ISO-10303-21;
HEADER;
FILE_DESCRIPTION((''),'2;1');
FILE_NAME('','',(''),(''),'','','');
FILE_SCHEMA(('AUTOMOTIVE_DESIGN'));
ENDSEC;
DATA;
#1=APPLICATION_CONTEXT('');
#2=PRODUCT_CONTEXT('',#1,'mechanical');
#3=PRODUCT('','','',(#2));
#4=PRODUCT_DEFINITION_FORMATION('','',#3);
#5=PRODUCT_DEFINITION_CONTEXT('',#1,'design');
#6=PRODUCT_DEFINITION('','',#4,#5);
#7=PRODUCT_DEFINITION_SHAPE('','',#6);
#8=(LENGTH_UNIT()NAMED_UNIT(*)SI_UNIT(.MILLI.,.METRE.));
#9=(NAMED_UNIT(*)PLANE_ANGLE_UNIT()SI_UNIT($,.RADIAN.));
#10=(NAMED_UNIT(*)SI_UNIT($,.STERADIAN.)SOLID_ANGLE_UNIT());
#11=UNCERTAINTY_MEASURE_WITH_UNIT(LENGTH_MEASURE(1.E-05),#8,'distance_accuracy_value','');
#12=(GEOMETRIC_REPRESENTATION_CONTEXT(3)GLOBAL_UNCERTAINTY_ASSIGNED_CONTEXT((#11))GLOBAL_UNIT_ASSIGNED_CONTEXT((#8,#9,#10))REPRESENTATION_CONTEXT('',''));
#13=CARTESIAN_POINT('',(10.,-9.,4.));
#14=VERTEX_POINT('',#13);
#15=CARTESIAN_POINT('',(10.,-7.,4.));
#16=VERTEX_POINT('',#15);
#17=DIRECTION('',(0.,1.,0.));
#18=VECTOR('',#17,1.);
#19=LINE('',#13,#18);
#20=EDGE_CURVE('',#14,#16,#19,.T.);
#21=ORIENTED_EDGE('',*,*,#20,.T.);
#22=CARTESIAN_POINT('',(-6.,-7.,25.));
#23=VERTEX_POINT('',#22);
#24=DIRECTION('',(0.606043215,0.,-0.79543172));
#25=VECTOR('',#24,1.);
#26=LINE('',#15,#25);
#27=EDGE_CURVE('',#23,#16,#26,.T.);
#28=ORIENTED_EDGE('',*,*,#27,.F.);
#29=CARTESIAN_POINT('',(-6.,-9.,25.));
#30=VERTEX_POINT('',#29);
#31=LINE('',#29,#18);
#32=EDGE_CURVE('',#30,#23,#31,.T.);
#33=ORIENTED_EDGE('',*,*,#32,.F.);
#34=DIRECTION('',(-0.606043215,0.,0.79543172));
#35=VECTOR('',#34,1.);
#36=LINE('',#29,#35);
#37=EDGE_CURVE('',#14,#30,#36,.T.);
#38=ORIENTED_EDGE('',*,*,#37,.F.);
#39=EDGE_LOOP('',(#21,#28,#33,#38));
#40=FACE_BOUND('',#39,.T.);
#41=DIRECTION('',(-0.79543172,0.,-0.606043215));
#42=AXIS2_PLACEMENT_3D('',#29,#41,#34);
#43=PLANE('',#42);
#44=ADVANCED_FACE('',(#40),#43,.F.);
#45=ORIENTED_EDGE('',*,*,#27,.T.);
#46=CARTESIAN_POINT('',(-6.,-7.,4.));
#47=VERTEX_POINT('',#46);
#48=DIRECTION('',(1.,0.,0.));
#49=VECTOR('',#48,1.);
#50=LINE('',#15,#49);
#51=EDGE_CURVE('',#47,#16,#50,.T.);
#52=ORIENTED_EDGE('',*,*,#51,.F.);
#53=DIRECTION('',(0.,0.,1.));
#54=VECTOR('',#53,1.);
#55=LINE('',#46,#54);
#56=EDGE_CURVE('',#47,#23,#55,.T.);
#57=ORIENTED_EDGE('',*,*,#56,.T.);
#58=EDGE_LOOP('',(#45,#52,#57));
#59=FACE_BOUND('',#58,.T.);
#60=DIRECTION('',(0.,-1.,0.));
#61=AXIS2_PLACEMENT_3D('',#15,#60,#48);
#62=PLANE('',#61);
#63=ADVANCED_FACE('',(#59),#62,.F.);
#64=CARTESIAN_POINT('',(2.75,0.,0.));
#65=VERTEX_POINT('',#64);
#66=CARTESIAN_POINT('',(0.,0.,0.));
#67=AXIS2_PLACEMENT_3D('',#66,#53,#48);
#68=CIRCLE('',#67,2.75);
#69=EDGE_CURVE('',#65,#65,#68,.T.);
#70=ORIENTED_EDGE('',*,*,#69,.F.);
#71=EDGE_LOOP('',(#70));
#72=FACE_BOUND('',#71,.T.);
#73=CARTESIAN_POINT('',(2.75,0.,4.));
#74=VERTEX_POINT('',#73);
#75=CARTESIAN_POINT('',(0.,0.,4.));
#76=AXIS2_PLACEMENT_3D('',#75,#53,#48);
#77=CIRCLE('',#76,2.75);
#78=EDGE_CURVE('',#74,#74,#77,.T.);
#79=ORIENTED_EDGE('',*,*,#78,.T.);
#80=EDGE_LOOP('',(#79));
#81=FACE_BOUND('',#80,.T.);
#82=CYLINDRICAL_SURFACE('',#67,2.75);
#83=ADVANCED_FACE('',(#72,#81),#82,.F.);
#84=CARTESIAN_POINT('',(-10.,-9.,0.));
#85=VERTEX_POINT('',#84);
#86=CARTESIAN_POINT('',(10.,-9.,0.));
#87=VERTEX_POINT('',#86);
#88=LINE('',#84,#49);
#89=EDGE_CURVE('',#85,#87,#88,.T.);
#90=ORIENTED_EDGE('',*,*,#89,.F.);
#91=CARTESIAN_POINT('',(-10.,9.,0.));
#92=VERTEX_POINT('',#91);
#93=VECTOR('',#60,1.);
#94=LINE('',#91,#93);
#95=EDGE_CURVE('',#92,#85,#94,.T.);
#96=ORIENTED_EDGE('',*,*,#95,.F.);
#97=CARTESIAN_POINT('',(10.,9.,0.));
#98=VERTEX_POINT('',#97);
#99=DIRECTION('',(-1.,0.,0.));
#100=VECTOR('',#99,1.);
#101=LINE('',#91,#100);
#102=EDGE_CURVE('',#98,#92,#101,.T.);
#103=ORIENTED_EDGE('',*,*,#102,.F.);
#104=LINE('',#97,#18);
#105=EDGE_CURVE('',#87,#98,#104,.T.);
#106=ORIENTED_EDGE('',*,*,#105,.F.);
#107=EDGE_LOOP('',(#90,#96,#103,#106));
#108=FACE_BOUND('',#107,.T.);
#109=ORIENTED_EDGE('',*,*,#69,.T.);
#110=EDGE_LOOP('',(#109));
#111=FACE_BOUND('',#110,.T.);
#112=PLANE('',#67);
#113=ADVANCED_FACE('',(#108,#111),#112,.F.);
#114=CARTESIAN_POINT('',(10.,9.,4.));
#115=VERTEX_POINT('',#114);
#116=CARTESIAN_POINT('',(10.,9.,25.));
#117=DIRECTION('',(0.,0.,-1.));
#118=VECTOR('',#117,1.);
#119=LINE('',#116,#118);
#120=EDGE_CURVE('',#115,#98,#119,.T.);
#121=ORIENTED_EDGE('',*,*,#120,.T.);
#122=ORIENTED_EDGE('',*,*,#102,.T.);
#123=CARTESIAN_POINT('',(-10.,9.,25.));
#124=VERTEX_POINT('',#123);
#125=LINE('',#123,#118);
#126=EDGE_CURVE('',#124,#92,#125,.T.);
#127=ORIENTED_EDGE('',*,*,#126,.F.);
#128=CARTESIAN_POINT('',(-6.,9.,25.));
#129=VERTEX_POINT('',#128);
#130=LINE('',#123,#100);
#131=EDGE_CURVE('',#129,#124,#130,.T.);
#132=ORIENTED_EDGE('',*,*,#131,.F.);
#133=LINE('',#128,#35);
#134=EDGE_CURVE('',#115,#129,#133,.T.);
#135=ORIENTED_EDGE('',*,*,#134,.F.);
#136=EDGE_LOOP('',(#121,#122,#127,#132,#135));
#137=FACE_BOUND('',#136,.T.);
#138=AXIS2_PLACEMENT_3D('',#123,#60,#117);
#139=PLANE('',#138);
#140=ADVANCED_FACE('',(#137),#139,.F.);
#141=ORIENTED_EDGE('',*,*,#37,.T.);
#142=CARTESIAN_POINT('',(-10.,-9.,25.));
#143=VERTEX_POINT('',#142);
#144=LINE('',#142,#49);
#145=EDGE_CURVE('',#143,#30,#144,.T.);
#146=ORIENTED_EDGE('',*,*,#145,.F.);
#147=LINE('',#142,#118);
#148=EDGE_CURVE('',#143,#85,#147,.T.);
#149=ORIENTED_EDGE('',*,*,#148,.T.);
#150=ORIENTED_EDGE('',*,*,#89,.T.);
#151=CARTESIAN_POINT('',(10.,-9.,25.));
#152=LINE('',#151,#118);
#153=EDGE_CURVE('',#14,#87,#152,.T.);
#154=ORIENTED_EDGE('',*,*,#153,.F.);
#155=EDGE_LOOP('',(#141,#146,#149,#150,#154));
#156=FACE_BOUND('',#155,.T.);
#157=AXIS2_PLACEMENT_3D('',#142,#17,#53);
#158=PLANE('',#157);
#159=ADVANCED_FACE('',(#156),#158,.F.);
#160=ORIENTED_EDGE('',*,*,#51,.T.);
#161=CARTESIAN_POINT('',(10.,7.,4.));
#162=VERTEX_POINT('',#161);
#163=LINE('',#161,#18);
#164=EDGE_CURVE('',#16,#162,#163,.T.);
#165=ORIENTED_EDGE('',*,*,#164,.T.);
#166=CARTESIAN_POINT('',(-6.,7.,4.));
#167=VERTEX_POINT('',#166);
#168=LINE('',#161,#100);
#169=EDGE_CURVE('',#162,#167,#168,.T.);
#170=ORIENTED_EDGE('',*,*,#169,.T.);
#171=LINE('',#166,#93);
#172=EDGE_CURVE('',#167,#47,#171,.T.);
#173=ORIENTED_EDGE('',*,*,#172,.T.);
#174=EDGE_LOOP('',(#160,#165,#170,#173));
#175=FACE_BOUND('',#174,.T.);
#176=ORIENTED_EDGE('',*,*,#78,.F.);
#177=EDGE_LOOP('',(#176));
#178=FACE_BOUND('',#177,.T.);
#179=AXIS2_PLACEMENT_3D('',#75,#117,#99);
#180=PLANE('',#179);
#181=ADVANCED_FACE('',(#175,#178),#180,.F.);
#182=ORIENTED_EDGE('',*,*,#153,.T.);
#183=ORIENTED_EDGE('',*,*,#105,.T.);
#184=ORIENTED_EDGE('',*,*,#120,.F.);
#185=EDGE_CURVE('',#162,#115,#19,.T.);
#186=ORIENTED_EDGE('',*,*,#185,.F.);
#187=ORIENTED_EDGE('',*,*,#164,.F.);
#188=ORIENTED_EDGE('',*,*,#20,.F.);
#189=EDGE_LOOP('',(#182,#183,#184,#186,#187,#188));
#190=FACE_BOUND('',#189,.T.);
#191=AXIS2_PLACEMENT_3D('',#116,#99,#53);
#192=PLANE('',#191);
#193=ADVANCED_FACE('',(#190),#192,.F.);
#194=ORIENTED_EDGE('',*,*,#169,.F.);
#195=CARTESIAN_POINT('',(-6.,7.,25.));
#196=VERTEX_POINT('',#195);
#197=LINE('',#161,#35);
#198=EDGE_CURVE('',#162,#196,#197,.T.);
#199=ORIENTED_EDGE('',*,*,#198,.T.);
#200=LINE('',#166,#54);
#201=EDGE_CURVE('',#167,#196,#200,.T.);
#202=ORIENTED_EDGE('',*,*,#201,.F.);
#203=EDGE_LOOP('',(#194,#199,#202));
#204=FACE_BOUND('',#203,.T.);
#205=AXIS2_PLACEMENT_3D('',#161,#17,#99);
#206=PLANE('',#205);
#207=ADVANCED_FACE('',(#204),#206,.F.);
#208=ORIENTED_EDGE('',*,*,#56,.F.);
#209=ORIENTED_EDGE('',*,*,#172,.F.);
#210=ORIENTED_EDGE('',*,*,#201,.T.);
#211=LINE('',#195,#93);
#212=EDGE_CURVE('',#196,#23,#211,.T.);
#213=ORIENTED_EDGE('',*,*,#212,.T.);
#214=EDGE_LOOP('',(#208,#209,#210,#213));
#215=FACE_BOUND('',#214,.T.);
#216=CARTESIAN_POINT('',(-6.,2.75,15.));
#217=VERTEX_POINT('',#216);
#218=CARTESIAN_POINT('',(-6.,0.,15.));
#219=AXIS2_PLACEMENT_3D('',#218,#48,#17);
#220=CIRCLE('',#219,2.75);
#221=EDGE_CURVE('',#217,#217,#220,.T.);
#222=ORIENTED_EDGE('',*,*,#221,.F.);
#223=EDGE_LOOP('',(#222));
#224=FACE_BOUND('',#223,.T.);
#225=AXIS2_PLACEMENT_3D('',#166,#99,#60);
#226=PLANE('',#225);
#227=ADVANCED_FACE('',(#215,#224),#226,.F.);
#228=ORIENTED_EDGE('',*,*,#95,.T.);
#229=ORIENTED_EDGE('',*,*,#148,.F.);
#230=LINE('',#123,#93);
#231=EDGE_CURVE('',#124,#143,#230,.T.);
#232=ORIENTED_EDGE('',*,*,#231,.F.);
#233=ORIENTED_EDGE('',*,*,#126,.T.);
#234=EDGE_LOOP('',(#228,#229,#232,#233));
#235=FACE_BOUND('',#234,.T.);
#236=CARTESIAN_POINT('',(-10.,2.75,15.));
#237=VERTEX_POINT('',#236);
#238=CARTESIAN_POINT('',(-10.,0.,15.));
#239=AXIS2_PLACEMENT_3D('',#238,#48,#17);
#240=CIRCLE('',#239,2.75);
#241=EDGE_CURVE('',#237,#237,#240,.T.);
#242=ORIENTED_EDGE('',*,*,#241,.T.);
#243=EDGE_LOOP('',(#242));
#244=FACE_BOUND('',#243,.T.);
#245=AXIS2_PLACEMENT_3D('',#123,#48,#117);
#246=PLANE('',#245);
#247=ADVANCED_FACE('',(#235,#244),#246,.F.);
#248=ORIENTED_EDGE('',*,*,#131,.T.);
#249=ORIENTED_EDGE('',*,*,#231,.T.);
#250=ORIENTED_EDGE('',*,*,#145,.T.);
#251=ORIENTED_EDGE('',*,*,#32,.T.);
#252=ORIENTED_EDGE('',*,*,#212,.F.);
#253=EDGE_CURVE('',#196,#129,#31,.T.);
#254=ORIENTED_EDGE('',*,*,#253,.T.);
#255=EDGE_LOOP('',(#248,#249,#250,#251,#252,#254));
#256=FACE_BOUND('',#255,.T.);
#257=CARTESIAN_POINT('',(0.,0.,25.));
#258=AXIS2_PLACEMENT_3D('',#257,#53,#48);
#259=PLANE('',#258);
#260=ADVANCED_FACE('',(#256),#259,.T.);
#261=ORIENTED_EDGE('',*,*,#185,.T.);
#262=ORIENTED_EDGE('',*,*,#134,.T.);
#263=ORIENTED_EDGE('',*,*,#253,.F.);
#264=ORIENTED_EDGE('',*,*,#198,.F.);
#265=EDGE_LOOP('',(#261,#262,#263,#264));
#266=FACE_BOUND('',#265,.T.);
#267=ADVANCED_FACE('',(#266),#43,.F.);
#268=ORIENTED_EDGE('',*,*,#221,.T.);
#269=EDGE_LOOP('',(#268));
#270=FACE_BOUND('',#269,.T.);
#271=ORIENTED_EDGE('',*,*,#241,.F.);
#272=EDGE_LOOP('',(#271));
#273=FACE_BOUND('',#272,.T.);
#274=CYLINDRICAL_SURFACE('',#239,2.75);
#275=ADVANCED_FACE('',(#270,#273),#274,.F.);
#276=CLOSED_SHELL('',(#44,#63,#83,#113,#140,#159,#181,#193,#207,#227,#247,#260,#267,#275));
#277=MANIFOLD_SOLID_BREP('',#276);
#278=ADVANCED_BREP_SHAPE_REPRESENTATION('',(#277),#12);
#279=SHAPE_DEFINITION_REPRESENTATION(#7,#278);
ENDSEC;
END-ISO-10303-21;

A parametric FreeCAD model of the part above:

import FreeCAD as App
import Part
import Sketcher

V = App.Vector
Q = App.Units.Quantity

doc = App.newDocument("Part")
body = doc.addObject("PartDesign::Body", "Body")

sketch1 = doc.addObject("Sketcher::SketchObject", "Sketch")
body.addObject(sketch1)
sketch1.AttachmentSupport = (doc.XY_Plane, [""])
sketch1.MapMode = "FlatFace"
sketch1.addGeometry(Part.LineSegment(V(-10, 9, 0), V(-10, -9, 0)), False)
sketch1.addGeometry(Part.LineSegment(V(-10, -9, 0), V(10, -9, 0)), False)
sketch1.addGeometry(Part.LineSegment(V(10, -9, 0), V(10, 9, 0)), False)
sketch1.addGeometry(Part.LineSegment(V(10, 9, 0), V(-10, 9, 0)), False)
sketch1.addConstraint(Sketcher.Constraint("Coincident", 0, 2, 1, 1))
sketch1.addConstraint(Sketcher.Constraint("Coincident", 1, 2, 2, 1))
sketch1.addConstraint(Sketcher.Constraint("Coincident", 2, 2, 3, 1))
sketch1.addConstraint(Sketcher.Constraint("Coincident", 3, 2, 0, 1))
sketch1.addConstraint(Sketcher.Constraint("Vertical", 0))
sketch1.addConstraint(Sketcher.Constraint("Horizontal", 1))
sketch1.addConstraint(Sketcher.Constraint("Vertical", 2))
sketch1.addConstraint(Sketcher.Constraint("Horizontal", 3))
sketch1.addConstraint(Sketcher.Constraint("Symmetric", 0, 2, 2, 2, -1, 1))
sketch1.addConstraint(Sketcher.Constraint("DistanceX", 1, 1, 1, 2, Q("20 mm")))
sketch1.addConstraint(Sketcher.Constraint("DistanceY", 0, 2, 0, 1, Q("18 mm")))
pad1 = doc.addObject("PartDesign::Pad", "Pad")
body.addObject(pad1)
pad1.Profile = sketch1
pad1.Length = 25

sketch2 = doc.addObject("Sketcher::SketchObject", "Sketch001")
body.addObject(sketch2)
sketch2.AttachmentSupport = (doc.XY_Plane, [""])
sketch2.MapMode = "FlatFace"
sketch2.AttachmentOffset = App.Placement(V(0, 0, 25), App.Rotation())
sketch2.addGeometry(Part.LineSegment(V(-6, 7, 0), V(-6, -7, 0)), False)
sketch2.addGeometry(Part.LineSegment(V(-6, -7, 0), V(10, -7, 0)), False)
sketch2.addGeometry(Part.LineSegment(V(10, -7, 0), V(10, 7, 0)), False)
sketch2.addGeometry(Part.LineSegment(V(10, 7, 0), V(-6, 7, 0)), False)
sketch2.addConstraint(Sketcher.Constraint("Coincident", 0, 2, 1, 1))
sketch2.addConstraint(Sketcher.Constraint("Coincident", 1, 2, 2, 1))
sketch2.addConstraint(Sketcher.Constraint("Coincident", 2, 2, 3, 1))
sketch2.addConstraint(Sketcher.Constraint("Coincident", 3, 2, 0, 1))
sketch2.addConstraint(Sketcher.Constraint("Vertical", 0))
sketch2.addConstraint(Sketcher.Constraint("Horizontal", 1))
sketch2.addConstraint(Sketcher.Constraint("Vertical", 2))
sketch2.addConstraint(Sketcher.Constraint("Horizontal", 3))
sketch2.addConstraint(Sketcher.Constraint("DistanceX", 1, 1, 1, 2, Q("16 mm")))
sketch2.addConstraint(Sketcher.Constraint("DistanceY", 0, 2, 0, 1, Q("14 mm")))
sketch2.addConstraint(Sketcher.Constraint("DistanceX", 0, 2, -1, 1, Q("6 mm")))
sketch2.addConstraint(Sketcher.Constraint("DistanceY", 0, 2, -1, 1, Q("7 mm")))
pocket1 = doc.addObject("PartDesign::Pocket", "Pocket")
body.addObject(pocket1)
pocket1.Profile = sketch2
pocket1.Length = 21

sketch3 = doc.addObject("Sketcher::SketchObject", "Sketch002")
body.addObject(sketch3)
sketch3.AttachmentSupport = (doc.XZ_Plane, [""])
sketch3.MapMode = "FlatFace"
sketch3.AttachmentOffset = App.Placement(V(0, 0, 7), App.Rotation())
sketch3.addGeometry(Part.LineSegment(V(10, 4, 0), V(-6, 25, 0)), False)
sketch3.addGeometry(Part.LineSegment(V(-6, 25, 0), V(10, 25, 0)), False)
sketch3.addGeometry(Part.LineSegment(V(10, 25, 0), V(10, 4, 0)), False)
sketch3.addConstraint(Sketcher.Constraint("Coincident", 0, 2, 1, 1))
sketch3.addConstraint(Sketcher.Constraint("Coincident", 1, 2, 2, 1))
sketch3.addConstraint(Sketcher.Constraint("Coincident", 2, 2, 0, 1))
sketch3.addConstraint(Sketcher.Constraint("Horizontal", 1))
sketch3.addConstraint(Sketcher.Constraint("Vertical", 2))
sketch3.addConstraint(Sketcher.Constraint("DistanceX", 1, 1, 1, 2, Q("16 mm")))
sketch3.addConstraint(Sketcher.Constraint("DistanceY", 2, 2, 2, 1, Q("21 mm")))
sketch3.addConstraint(Sketcher.Constraint("DistanceX", 0, 2, -1, 1, Q("6 mm")))
sketch3.addConstraint(Sketcher.Constraint("DistanceY", -1, 1, 0, 2, Q("25 mm")))
pocket2 = doc.addObject("PartDesign::Pocket", "Pocket001")
body.addObject(pocket2)
pocket2.Profile = sketch3
pocket2.Type = "ThroughAll"
pocket2.Midplane = True

sketch4 = doc.addObject("Sketcher::SketchObject", "Sketch003")
body.addObject(sketch4)
sketch4.AttachmentSupport = (doc.XY_Plane, [""])
sketch4.MapMode = "FlatFace"
sketch4.AttachmentOffset = App.Placement(V(0, 0, 4), App.Rotation())
sketch4.addGeometry(Part.Circle(V(0, 0, 0), V(0, 0, 1), 2.75), False)
sketch4.addConstraint(Sketcher.Constraint("Coincident", 0, 3, -1, 1))
sketch4.addConstraint(Sketcher.Constraint("Diameter", 0, Q("5.5 mm")))
pocket3 = doc.addObject("PartDesign::Pocket", "Pocket002")
body.addObject(pocket3)
pocket3.Profile = sketch4
pocket3.Type = "ThroughAll"
pocket3.Midplane = True

sketch5 = doc.addObject("Sketcher::SketchObject", "Sketch004")
body.addObject(sketch5)
sketch5.AttachmentSupport = (doc.YZ_Plane, [""])
sketch5.MapMode = "FlatFace"
sketch5.AttachmentOffset = App.Placement(V(0, 0, -6), App.Rotation())
sketch5.addGeometry(Part.Circle(V(0, 15, 0), V(0, 0, 1), 2.75), False)
sketch5.addConstraint(Sketcher.Constraint("PointOnObject", 0, 3, -2))
sketch5.addConstraint(Sketcher.Constraint("Diameter", 0, Q("5.5 mm")))
sketch5.addConstraint(Sketcher.Constraint("DistanceY", -1, 1, 0, 3, Q("15 mm")))
pocket4 = doc.addObject("PartDesign::Pocket", "Pocket003")
body.addObject(pocket4)
pocket4.Profile = sketch5
pocket4.Type = "ThroughAll"
pocket4.Midplane = True

doc.recompute()
